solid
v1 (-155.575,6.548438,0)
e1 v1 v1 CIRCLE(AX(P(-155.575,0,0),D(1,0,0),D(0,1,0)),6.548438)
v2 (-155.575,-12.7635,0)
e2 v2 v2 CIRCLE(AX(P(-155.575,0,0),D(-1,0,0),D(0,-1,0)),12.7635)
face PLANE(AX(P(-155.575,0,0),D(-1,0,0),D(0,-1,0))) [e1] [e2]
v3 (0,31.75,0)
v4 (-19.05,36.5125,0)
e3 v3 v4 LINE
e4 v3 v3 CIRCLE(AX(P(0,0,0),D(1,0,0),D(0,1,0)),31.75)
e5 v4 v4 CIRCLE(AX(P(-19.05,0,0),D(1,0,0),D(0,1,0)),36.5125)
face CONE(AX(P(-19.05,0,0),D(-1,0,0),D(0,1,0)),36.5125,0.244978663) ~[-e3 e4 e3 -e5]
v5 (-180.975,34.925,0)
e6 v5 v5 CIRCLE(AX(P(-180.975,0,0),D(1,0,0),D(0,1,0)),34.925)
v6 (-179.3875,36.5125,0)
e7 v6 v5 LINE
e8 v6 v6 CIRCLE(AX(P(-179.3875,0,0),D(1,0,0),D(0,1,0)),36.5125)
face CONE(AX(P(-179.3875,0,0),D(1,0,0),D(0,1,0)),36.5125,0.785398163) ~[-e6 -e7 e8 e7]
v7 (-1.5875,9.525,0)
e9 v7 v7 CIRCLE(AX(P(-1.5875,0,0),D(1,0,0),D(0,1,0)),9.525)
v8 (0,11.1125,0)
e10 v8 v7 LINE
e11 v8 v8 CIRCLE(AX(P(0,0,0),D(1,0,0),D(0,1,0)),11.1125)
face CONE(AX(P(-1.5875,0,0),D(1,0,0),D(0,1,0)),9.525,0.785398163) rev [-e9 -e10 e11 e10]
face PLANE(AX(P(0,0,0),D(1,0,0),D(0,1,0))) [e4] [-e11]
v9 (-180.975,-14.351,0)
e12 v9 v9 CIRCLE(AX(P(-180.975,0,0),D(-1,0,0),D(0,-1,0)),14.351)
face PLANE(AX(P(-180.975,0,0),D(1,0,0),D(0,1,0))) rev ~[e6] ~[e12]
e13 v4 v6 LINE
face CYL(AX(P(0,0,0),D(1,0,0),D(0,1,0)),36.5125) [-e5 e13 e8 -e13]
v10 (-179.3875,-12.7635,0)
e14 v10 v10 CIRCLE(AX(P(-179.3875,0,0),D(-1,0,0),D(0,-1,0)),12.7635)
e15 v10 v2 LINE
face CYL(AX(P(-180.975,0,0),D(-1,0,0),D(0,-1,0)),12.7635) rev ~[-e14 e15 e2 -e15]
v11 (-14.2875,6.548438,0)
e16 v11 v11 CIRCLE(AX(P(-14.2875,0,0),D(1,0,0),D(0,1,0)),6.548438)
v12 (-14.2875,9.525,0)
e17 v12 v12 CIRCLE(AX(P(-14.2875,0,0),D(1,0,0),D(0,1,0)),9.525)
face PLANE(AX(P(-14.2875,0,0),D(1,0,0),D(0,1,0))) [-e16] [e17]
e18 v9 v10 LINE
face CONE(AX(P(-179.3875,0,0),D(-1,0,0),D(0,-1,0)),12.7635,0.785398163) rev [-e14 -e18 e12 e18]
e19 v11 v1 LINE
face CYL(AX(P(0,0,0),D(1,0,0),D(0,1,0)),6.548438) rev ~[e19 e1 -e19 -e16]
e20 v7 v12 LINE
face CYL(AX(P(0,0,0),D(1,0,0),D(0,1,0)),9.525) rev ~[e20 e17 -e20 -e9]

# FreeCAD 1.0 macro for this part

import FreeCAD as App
import Part
import Sketcher
from FreeCAD import Vector
Q = App.Units.Quantity


def edges_at(feature, points):
    """Names of the edges that pass closest to the given points."""
    edges = feature.Shape.Edges
    near = lambda p: min(range(len(edges)), key=lambda i: edges[i].distToShape(Part.Vertex(*p))[0])
    return sorted({f"Edge{near(p) + 1}" for p in points})

doc = App.newDocument("Part")
body = doc.addObject("PartDesign::Body", "Body")

# Sketch on YZ plane
sketch1 = doc.addObject("Sketcher::SketchObject", "Sketch")
body.addObject(sketch1)
sketch1.AttachmentSupport = (doc.YZ_Plane, [""])
sketch1.MapMode = "FlatFace"
sketch1.addGeometry(Part.Circle(Vector(0, 0, 0), Vector(0, 0, 1), 36.5125), False)
sketch1.addConstraint([
    Sketcher.Constraint("Coincident", 0, 3, -1, 1),
    Sketcher.Constraint("Diameter", 0, Q("2.875 in")),
])
pad1 = doc.addObject("PartDesign::Pad", "Pad")
body.addObject(pad1)
pad1.Profile = sketch1
pad1.Length = Q("7.125 in")
pad1.Reversed = True

# Sketch on YZ plane
sketch2 = doc.addObject("Sketcher::SketchObject", "Sketch001")
body.addObject(sketch2)
sketch2.AttachmentSupport = (doc.YZ_Plane, [""])
sketch2.MapMode = "FlatFace"
sketch2.addGeometry(Part.Circle(Vector(0, 0, 0), Vector(0, 0, 1), 6.548438), False)
sketch2.addConstraint([
    Sketcher.Constraint("Coincident", 0, 3, -1, 1),
    Sketcher.Constraint("Diameter", 0, Q("0.515625 in")),
])
pocket1 = doc.addObject("PartDesign::Pocket", "Pocket")
body.addObject(pocket1)
pocket1.Profile = sketch2
pocket1.Type = "ThroughAll"

# Sketch on YZ plane
sketch3 = doc.addObject("Sketcher::SketchObject", "Sketch002")
body.addObject(sketch3)
sketch3.AttachmentSupport = (doc.YZ_Plane, [""])
sketch3.MapMode = "FlatFace"
sketch3.addGeometry(Part.Circle(Vector(0, 0, 0), Vector(0, 0, 1), 9.525), False)
sketch3.addConstraint([
    Sketcher.Constraint("Coincident", 0, 3, -1, 1),
    Sketcher.Constraint("Diameter", 0, Q("0.75 in")),
])
pocket2 = doc.addObject("PartDesign::Pocket", "Pocket001")
body.addObject(pocket2)
pocket2.Profile = sketch3
pocket2.Length = Q("0.5625 in")

# Sketch on YZ plane
sketch4 = doc.addObject("Sketcher::SketchObject", "Sketch003")
body.addObject(sketch4)
sketch4.AttachmentSupport = (doc.YZ_Plane, [""])
sketch4.MapMode = "FlatFace"
sketch4.AttachmentOffset = App.Placement(Vector(0, 0, -7.125 * 25.4), App.Rotation())
sketch4.addGeometry(Part.Circle(Vector(0, 0, 0), Vector(0, 0, 1), 12.7635), False)
sketch4.addConstraint([
    Sketcher.Constraint("Coincident", 0, 3, -1, 1),
    Sketcher.Constraint("Diameter", 0, Q("1.005 in")),
])
pocket3 = doc.addObject("PartDesign::Pocket", "Pocket002")
body.addObject(pocket3)
pocket3.Profile = sketch4
pocket3.Length = Q("1 in")
pocket3.Reversed = True
doc.recompute()

chamfer = doc.addObject("PartDesign::Chamfer", "Chamfer")
body.addObject(chamfer)
chamfer.Base = (pocket3, edges_at(pocket3, [(0, -9.525, 0), (-180.975, -36.513, 0), (-180.975, 12.764, 0)]))
chamfer.Size = Q("0.0625 in")
doc.recompute()

chamfer2 = doc.addObject("PartDesign::Chamfer", "Chamfer001")
body.addObject(chamfer2)
chamfer2.Base = (chamfer, edges_at(chamfer, [(0, -36.513, 0)]))
chamfer2.ChamferType = "Two distances"
chamfer2.Size = Q("0.1875 in")
chamfer2.Size2 = Q("0.75 in")
chamfer2.FlipDirection = True

doc.recompute()
